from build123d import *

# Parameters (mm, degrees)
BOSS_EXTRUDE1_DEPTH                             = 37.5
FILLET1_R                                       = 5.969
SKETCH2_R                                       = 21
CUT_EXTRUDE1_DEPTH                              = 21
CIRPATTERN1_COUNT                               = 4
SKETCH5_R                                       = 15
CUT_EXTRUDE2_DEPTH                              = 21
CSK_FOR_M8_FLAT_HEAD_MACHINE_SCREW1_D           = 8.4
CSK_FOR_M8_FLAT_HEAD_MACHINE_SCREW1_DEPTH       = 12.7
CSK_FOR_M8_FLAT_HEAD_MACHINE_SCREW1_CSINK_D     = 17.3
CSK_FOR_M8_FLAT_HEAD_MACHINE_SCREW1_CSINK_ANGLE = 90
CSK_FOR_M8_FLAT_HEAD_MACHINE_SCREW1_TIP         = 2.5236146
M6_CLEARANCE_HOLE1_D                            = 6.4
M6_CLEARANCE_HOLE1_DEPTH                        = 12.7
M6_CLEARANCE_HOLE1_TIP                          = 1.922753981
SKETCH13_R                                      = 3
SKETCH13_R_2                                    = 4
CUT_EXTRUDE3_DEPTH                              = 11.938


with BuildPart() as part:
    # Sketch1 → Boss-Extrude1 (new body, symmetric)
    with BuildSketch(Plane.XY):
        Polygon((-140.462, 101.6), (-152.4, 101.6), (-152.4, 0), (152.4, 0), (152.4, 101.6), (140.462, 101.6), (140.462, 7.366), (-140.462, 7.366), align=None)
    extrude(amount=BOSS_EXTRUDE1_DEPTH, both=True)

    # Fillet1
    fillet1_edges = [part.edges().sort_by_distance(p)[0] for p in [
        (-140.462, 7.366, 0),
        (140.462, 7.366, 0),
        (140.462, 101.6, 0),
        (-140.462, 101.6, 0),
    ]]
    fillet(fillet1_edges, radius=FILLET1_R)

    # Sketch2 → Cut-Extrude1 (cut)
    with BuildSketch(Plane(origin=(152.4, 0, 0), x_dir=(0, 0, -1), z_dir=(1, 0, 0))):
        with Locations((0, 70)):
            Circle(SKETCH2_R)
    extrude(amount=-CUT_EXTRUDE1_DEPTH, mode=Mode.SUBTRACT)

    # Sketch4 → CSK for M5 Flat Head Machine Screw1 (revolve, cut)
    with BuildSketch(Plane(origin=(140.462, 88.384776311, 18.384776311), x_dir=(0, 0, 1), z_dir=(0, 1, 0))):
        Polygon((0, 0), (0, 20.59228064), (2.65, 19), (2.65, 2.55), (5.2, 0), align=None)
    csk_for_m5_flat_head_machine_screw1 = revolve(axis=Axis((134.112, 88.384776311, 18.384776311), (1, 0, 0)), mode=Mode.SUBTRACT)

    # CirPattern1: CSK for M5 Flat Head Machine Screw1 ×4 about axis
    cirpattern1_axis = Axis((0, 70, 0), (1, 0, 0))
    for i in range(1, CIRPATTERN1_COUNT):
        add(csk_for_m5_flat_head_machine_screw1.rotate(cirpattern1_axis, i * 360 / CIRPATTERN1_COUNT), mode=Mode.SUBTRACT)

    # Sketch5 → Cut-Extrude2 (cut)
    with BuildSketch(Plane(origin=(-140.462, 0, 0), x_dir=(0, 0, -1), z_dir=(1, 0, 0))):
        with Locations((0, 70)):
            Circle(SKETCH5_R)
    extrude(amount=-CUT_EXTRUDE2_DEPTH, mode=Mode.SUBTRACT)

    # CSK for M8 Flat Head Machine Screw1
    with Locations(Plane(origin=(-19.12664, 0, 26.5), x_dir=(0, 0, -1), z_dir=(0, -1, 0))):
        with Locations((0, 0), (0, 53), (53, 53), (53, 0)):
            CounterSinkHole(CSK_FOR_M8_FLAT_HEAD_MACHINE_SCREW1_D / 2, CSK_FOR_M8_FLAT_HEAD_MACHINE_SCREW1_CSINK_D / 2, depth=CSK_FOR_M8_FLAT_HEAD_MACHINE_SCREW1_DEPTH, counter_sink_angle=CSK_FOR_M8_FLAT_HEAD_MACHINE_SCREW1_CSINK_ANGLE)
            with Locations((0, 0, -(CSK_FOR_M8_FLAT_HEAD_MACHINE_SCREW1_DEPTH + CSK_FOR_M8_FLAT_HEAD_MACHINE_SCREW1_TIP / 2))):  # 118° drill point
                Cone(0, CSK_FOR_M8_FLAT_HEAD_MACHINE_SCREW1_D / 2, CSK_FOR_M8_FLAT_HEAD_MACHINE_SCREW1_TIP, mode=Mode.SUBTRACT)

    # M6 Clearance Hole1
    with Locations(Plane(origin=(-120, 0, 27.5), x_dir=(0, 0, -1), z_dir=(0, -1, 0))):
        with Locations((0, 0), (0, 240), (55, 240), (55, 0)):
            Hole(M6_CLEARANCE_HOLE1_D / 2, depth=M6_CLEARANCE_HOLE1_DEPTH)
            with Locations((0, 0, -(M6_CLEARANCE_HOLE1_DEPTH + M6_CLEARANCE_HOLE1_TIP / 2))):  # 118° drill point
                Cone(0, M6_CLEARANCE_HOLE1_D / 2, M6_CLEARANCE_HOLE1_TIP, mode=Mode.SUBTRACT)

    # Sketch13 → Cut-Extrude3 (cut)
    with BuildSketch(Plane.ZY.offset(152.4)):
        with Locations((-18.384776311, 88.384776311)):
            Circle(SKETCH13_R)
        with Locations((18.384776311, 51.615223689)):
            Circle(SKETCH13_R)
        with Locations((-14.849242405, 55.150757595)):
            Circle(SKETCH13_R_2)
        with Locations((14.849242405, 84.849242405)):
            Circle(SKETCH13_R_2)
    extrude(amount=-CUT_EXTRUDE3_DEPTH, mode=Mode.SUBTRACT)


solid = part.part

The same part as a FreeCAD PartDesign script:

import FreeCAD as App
import Part
import Sketcher
Q = App.Units.Quantity


def edges_at(feature, points):
    """Names of the edges that pass closest to the given points."""
    edges = feature.Shape.Edges
    near = lambda p: min(range(len(edges)), key=lambda i: edges[i].distToShape(Part.Vertex(*p))[0])
    return sorted({f"Edge{near(p) + 1}" for p in points})

doc = App.newDocument("Part")
body = doc.addObject("PartDesign::Body", "Body")

# Sketch on XY plane
sketch1 = body.newObject("Sketcher::SketchObject", "Sketch")
sketch1.AttachmentSupport = (doc.getObject("XY_Plane"), [""])
sketch1.MapMode = "FlatFace"
sketch1.addGeometry(Part.LineSegment(App.Vector(-140.462, 101.6, 0), App.Vector(-152.4, 101.6, 0)), False)
sketch1.addGeometry(Part.LineSegment(App.Vector(-152.4, 101.6, 0), App.Vector(-152.4, 0, 0)), False)
sketch1.addGeometry(Part.LineSegment(App.Vector(-152.4, 0, 0), App.Vector(152.4, 0, 0)), False)
sketch1.addGeometry(Part.LineSegment(App.Vector(152.4, 0, 0), App.Vector(152.4, 101.6, 0)), False)
sketch1.addGeometry(Part.LineSegment(App.Vector(152.4, 101.6, 0), App.Vector(140.462, 101.6, 0)), False)
sketch1.addGeometry(Part.LineSegment(App.Vector(140.462, 101.6, 0), App.Vector(140.462, 7.366, 0)), False)
sketch1.addGeometry(Part.LineSegment(App.Vector(140.462, 7.366, 0), App.Vector(-140.462, 7.366, 0)), False)
sketch1.addGeometry(Part.LineSegment(App.Vector(-140.462, 7.366, 0), App.Vector(-140.462, 101.6, 0)), False)
sketch1.addConstraint(Sketcher.Constraint("Coincident", 0, 2, 1, 1))
sketch1.addConstraint(Sketcher.Constraint("Coincident", 1, 2, 2, 1))
sketch1.addConstraint(Sketcher.Constraint("Coincident", 2, 2, 3, 1))
sketch1.addConstraint(Sketcher.Constraint("Coincident", 3, 2, 4, 1))
sketch1.addConstraint(Sketcher.Constraint("Coincident", 4, 2, 5, 1))
sketch1.addConstraint(Sketcher.Constraint("Coincident", 5, 2, 6, 1))
sketch1.addConstraint(Sketcher.Constraint("Coincident", 6, 2, 7, 1))
sketch1.addConstraint(Sketcher.Constraint("Coincident", 7, 2, 0, 1))
sketch1.addConstraint(Sketcher.Constraint("Horizontal", 0))
sketch1.addConstraint(Sketcher.Constraint("Vertical", 1))
sketch1.addConstraint(Sketcher.Constraint("Horizontal", 2))
sketch1.addConstraint(Sketcher.Constraint("Vertical", 3))
sketch1.addConstraint(Sketcher.Constraint("Horizontal", 4))
sketch1.addConstraint(Sketcher.Constraint("Vertical", 5))
sketch1.addConstraint(Sketcher.Constraint("Horizontal", 6))
sketch1.addConstraint(Sketcher.Constraint("Vertical", 7))
sketch1.addConstraint(Sketcher.Constraint("Symmetric", 1, 2, 2, 2, -1, 1))
sketch1.addConstraint(Sketcher.Constraint("Symmetric", 4, 2, 7, 2, -2))
sketch1.addConstraint(Sketcher.Constraint("DistanceX", 2, 1, 2, 2, Q("304.8 mm")))
sketch1.addConstraint(Sketcher.Constraint("DistanceY", 1, 2, 1, 1, Q("101.6 mm")))
sketch1.addConstraint(Sketcher.Constraint("DistanceX", 0, 2, 0, 1, Q("11.938 mm")))
sketch1.addConstraint(Sketcher.Constraint("DistanceY", 5, 2, 5, 1, Q("94.234 mm")))
pad1 = body.newObject("PartDesign::Pad", "Pad")
pad1.Profile = sketch1
pad1.Length = 75
pad1.Midplane = True
doc.recompute()

fillet = body.newObject("PartDesign::Fillet", "Fillet")
fillet.Base = (pad1, edges_at(pad1, [
    (-140.462, 7.366, 0),
    (140.462, 7.366, 0),
    (140.462, 101.6, 0),
    (-140.462, 101.6, 0),
]))
fillet.Radius = 5.969

# Sketch on YZ plane
sketch2 = body.newObject("Sketcher::SketchObject", "Sketch001")
sketch2.AttachmentSupport = (doc.getObject("YZ_Plane"), [""])
sketch2.MapMode = "FlatFace"
sketch2.AttachmentOffset = App.Placement(App.Vector(0, 0, 152.4), App.Rotation())
sketch2.addGeometry(Part.Circle(App.Vector(70, 0, 0), App.Vector(0, 0, 1), 21), False)
sketch2.addConstraint(Sketcher.Constraint("PointOnObject", 0, 3, -1))
sketch2.addConstraint(Sketcher.Constraint("Diameter", 0, Q("42 mm")))
sketch2.addConstraint(Sketcher.Constraint("DistanceX", -1, 1, 0, 3, Q("70 mm")))
pocket1 = body.newObject("PartDesign::Pocket", "Pocket")
pocket1.Profile = sketch2
pocket1.Length = 21

# Sketch on XZ plane
sketch3 = body.newObject("Sketcher::SketchObject", "Sketch002")
sketch3.AttachmentSupport = (doc.getObject("XZ_Plane"), [""])
sketch3.MapMode = "FlatFace"
sketch3.AttachmentOffset = App.Placement(App.Vector(0, 0, -88.384776), App.Rotation())
sketch3.addGeometry(Part.LineSegment(App.Vector(161.054281, 18.384776, 0), App.Vector(140.462, 18.384776, 0)), False)
sketch3.addGeometry(Part.LineSegment(App.Vector(140.462, 18.384776, 0), App.Vector(140.462, 23.584776, 0)), False)
sketch3.addGeometry(Part.LineSegment(App.Vector(140.462, 23.584776, 0), App.Vector(143.012, 21.034776, 0)), False)
sketch3.addGeometry(Part.LineSegment(App.Vector(143.012, 21.034776, 0), App.Vector(159.462, 21.034776, 0)), False)
sketch3.addGeometry(Part.LineSegment(App.Vector(159.462, 21.034776, 0), App.Vector(161.054281, 18.384776, 0)), False)
sketch3.addGeometry(Part.LineSegment(App.Vector(140.462, 18.384776, 0), App.Vector(161.054281, 18.384776, 0)), True)  # axis
sketch3.addConstraint(Sketcher.Constraint("Coincident", 0, 2, 1, 1))
sketch3.addConstraint(Sketcher.Constraint("Coincident", 1, 2, 2, 1))
sketch3.addConstraint(Sketcher.Constraint("Coincident", 2, 2, 3, 1))
sketch3.addConstraint(Sketcher.Constraint("Coincident", 3, 2, 4, 1))
sketch3.addConstraint(Sketcher.Constraint("Coincident", 4, 2, 0, 1))
sketch3.addConstraint(Sketcher.Constraint("Horizontal", 0))
sketch3.addConstraint(Sketcher.Constraint("Vertical", 1))
sketch3.addConstraint(Sketcher.Constraint("Horizontal", 3))
sketch3.addConstraint(Sketcher.Constraint("Horizontal", 5))
sketch3.addConstraint(Sketcher.Constraint("Coincident", 5, 1, 0, 2))
sketch3.addConstraint(Sketcher.Constraint("Equal", 0, 5))
sketch3.addConstraint(Sketcher.Constraint("Angle", 2, Q("-45 deg")))
sketch3.addConstraint(Sketcher.Constraint("Angle", 4, Q("-59 deg")))
sketch3.addConstraint(Sketcher.Constraint("DistanceY", 1, 1, 1, 2, Q("5.2 mm")))
sketch3.addConstraint(Sketcher.Constraint("DistanceX", 1, 2, 3, 2, Q("19 mm")))
sketch3.addConstraint(Sketcher.Constraint("DistanceX", 3, 1, 3, 2, Q("16.45 mm")))
sketch3.addConstraint(Sketcher.Constraint("DistanceX", -1, 1, 0, 2, Q("140.462 mm")))
sketch3.addConstraint(Sketcher.Constraint("DistanceY", -1, 1, 0, 2, Q("18.384776 mm")))
groove = body.newObject("PartDesign::Groove", "Groove")
groove.Profile = sketch3
groove.ReferenceAxis = (sketch3, ["Axis0"])
groove.Angle = 360
doc.recompute()

datumline = body.newObject("PartDesign::Line", "DatumLine")
datumline.Placement = App.Placement(App.Vector(0, 70, 0), App.Rotation(App.Vector(0, 0, 1), App.Vector(1, 0, 0)))
polarpattern = body.newObject("PartDesign::PolarPattern", "PolarPattern")
polarpattern.Originals = [groove]
polarpattern.Axis = (datumline, [""])
polarpattern.Angle = 360
polarpattern.Occurrences = 4
body.Tip = polarpattern

# Sketch on YZ plane
sketch4 = body.newObject("Sketcher::SketchObject", "Sketch003")
sketch4.AttachmentSupport = (doc.getObject("YZ_Plane"), [""])
sketch4.MapMode = "FlatFace"
sketch4.AttachmentOffset = App.Placement(App.Vector(0, 0, -140.462), App.Rotation())
sketch4.addGeometry(Part.Circle(App.Vector(70, 0, 0), App.Vector(0, 0, 1), 15), False)
sketch4.addConstraint(Sketcher.Constraint("PointOnObject", 0, 3, -1))
sketch4.addConstraint(Sketcher.Constraint("Diameter", 0, Q("30 mm")))
sketch4.addConstraint(Sketcher.Constraint("DistanceX", -1, 1, 0, 3, Q("70 mm")))
pocket2 = body.newObject("PartDesign::Pocket", "Pocket001")
pocket2.Profile = sketch4
pocket2.Length = 21

# Sketch on XZ plane
sketch5 = body.newObject("Sketcher::SketchObject", "Sketch004")
sketch5.AttachmentSupport = (doc.getObject("XZ_Plane"), [""])
sketch5.MapMode = "FlatFace"
sketch5.addGeometry(Part.Circle(App.Vector(-19.12664, 26.5, 0), App.Vector(0, 0, 1), 4.2), False)
sketch5.addGeometry(Part.Circle(App.Vector(33.87336, 26.5, 0), App.Vector(0, 0, 1), 4.2), False)
sketch5.addGeometry(Part.Circle(App.Vector(33.87336, -26.5, 0), App.Vector(0, 0, 1), 4.2), False)
sketch5.addGeometry(Part.Circle(App.Vector(-19.12664, -26.5, 0), App.Vector(0, 0, 1), 4.2), False)
sketch5.addConstraint(Sketcher.Constraint("Equal", 0, 1))
sketch5.addConstraint(Sketcher.Constraint("Equal", 1, 2))
sketch5.addConstraint(Sketcher.Constraint("Equal", 2, 3))
sketch5.addConstraint(Sketcher.Constraint("Symmetric", 1, 3, 2, 3, -1))
sketch5.addConstraint(Sketcher.Constraint("Symmetric", 0, 3, 3, 3, -1))
sketch5.addConstraint(Sketcher.Constraint("Horizontal", 0, 3, 1, 3))
sketch5.addConstraint(Sketcher.Constraint("Diameter", 0, Q("8.4 mm")))
sketch5.addConstraint(Sketcher.Constraint("DistanceX", 0, 3, 1, 3, Q("53 mm")))
sketch5.addConstraint(Sketcher.Constraint("DistanceY", 2, 3, 1, 3, Q("53 mm")))
sketch5.addConstraint(Sketcher.Constraint("DistanceX", 0, 3, -1, 1, Q("19.12664 mm")))
doc.recompute()
hole = body.newObject("PartDesign::Hole", "Hole")
hole.Profile = sketch5
hole.ThreadType = "None"
hole.Diameter = 8.4
hole.DepthType = "Dimension"
hole.Depth = 12.7
hole.DrillPoint = "Angled"
hole.DrillPointAngle = 118
hole.HoleCutType = "Countersink"
hole.HoleCutDiameter = 17.3
hole.HoleCutCountersinkAngle = 90

# Sketch on XZ plane
sketch6 = body.newObject("Sketcher::SketchObject", "Sketch005")
sketch6.AttachmentSupport = (doc.getObject("XZ_Plane"), [""])
sketch6.MapMode = "FlatFace"
sketch6.addGeometry(Part.Circle(App.Vector(-120, 27.5, 0), App.Vector(0, 0, 1), 3.2), False)
sketch6.addGeometry(Part.Circle(App.Vector(120, 27.5, 0), App.Vector(0, 0, 1), 3.2), False)
sketch6.addGeometry(Part.Circle(App.Vector(120, -27.5, 0), App.Vector(0, 0, 1), 3.2), False)
sketch6.addGeometry(Part.Circle(App.Vector(-120, -27.5, 0), App.Vector(0, 0, 1), 3.2), False)
sketch6.addConstraint(Sketcher.Constraint("Equal", 0, 1))
sketch6.addConstraint(Sketcher.Constraint("Equal", 1, 2))
sketch6.addConstraint(Sketcher.Constraint("Equal", 2, 3))
sketch6.addConstraint(Sketcher.Constraint("Symmetric", 0, 3, 2, 3, -1, 1))
sketch6.addConstraint(Sketcher.Constraint("Symmetric", 1, 3, 3, 3, -1, 1))
sketch6.addConstraint(Sketcher.Constraint("Symmetric", 0, 3, 1, 3, -2))
sketch6.addConstraint(Sketcher.Constraint("Diameter", 0, Q("6.4 mm")))
sketch6.addConstraint(Sketcher.Constraint("DistanceX", 0, 3, -1, 1, Q("120 mm")))
sketch6.addConstraint(Sketcher.Constraint("DistanceY", 2, 3, 1, 3, Q("55 mm")))
doc.recompute()
hole2 = body.newObject("PartDesign::Hole", "Hole001")
hole2.Profile = sketch6
hole2.ThreadType = "None"
hole2.Diameter = 6.4
hole2.DepthType = "Dimension"
hole2.Depth = 12.7
hole2.DrillPoint = "Angled"
hole2.DrillPointAngle = 118

# Sketch on YZ plane
sketch7 = body.newObject("Sketcher::SketchObject", "Sketch006")
sketch7.AttachmentSupport = (doc.getObject("YZ_Plane"), [""])
sketch7.MapMode = "FlatFace"
sketch7.AttachmentOffset = App.Placement(App.Vector(0, 0, -152.4), App.Rotation())
sketch7.addGeometry(Part.Circle(App.Vector(88.384776, -18.384776, 0), App.Vector(0, 0, 1), 3), False)
sketch7.addGeometry(Part.Circle(App.Vector(51.615224, 18.384776, 0), App.Vector(0, 0, 1), 3), False)
sketch7.addGeometry(Part.Circle(App.Vector(55.150758, -14.849242, 0), App.Vector(0, 0, 1), 4), False)
sketch7.addGeometry(Part.Circle(App.Vector(84.849242, 14.849242, 0), App.Vector(0, 0, 1), 4), False)
sketch7.addConstraint(Sketcher.Constraint("Equal", 0, 1))
sketch7.addConstraint(Sketcher.Constraint("Equal", 2, 3))
sketch7.addConstraint(Sketcher.Constraint("Diameter", 0, Q("6 mm")))
sketch7.addConstraint(Sketcher.Constraint("Diameter", 2, Q("8 mm")))
sketch7.addConstraint(Sketcher.Constraint("DistanceX", 2, 3, 0, 3, Q("33.234019 mm")))
sketch7.addConstraint(Sketcher.Constraint("DistanceY", 2, 3, 1, 3, Q("33.234019 mm")))
sketch7.addConstraint(Sketcher.Constraint("DistanceY", 0, 3, 3, 3, Q("33.234019 mm")))
sketch7.addConstraint(Sketcher.Constraint("DistanceX", 1, 3, 3, 3, Q("33.234019 mm")))
sketch7.addConstraint(Sketcher.Constraint("DistanceX", -1, 1, 0, 3, Q("88.384776 mm")))
sketch7.addConstraint(Sketcher.Constraint("DistanceY", 0, 3, -1, 1, Q("18.384776 mm")))
sketch7.addConstraint(Sketcher.Constraint("DistanceX", -1, 1, 1, 3, Q("51.615224 mm")))
sketch7.addConstraint(Sketcher.Constraint("DistanceY", -1, 1, 1, 3, Q("18.384776 mm")))
pocket3 = body.newObject("PartDesign::Pocket", "Pocket002")
pocket3.Profile = sketch7
pocket3.Length = 11.938
pocket3.Reversed = True

doc.recompute()
